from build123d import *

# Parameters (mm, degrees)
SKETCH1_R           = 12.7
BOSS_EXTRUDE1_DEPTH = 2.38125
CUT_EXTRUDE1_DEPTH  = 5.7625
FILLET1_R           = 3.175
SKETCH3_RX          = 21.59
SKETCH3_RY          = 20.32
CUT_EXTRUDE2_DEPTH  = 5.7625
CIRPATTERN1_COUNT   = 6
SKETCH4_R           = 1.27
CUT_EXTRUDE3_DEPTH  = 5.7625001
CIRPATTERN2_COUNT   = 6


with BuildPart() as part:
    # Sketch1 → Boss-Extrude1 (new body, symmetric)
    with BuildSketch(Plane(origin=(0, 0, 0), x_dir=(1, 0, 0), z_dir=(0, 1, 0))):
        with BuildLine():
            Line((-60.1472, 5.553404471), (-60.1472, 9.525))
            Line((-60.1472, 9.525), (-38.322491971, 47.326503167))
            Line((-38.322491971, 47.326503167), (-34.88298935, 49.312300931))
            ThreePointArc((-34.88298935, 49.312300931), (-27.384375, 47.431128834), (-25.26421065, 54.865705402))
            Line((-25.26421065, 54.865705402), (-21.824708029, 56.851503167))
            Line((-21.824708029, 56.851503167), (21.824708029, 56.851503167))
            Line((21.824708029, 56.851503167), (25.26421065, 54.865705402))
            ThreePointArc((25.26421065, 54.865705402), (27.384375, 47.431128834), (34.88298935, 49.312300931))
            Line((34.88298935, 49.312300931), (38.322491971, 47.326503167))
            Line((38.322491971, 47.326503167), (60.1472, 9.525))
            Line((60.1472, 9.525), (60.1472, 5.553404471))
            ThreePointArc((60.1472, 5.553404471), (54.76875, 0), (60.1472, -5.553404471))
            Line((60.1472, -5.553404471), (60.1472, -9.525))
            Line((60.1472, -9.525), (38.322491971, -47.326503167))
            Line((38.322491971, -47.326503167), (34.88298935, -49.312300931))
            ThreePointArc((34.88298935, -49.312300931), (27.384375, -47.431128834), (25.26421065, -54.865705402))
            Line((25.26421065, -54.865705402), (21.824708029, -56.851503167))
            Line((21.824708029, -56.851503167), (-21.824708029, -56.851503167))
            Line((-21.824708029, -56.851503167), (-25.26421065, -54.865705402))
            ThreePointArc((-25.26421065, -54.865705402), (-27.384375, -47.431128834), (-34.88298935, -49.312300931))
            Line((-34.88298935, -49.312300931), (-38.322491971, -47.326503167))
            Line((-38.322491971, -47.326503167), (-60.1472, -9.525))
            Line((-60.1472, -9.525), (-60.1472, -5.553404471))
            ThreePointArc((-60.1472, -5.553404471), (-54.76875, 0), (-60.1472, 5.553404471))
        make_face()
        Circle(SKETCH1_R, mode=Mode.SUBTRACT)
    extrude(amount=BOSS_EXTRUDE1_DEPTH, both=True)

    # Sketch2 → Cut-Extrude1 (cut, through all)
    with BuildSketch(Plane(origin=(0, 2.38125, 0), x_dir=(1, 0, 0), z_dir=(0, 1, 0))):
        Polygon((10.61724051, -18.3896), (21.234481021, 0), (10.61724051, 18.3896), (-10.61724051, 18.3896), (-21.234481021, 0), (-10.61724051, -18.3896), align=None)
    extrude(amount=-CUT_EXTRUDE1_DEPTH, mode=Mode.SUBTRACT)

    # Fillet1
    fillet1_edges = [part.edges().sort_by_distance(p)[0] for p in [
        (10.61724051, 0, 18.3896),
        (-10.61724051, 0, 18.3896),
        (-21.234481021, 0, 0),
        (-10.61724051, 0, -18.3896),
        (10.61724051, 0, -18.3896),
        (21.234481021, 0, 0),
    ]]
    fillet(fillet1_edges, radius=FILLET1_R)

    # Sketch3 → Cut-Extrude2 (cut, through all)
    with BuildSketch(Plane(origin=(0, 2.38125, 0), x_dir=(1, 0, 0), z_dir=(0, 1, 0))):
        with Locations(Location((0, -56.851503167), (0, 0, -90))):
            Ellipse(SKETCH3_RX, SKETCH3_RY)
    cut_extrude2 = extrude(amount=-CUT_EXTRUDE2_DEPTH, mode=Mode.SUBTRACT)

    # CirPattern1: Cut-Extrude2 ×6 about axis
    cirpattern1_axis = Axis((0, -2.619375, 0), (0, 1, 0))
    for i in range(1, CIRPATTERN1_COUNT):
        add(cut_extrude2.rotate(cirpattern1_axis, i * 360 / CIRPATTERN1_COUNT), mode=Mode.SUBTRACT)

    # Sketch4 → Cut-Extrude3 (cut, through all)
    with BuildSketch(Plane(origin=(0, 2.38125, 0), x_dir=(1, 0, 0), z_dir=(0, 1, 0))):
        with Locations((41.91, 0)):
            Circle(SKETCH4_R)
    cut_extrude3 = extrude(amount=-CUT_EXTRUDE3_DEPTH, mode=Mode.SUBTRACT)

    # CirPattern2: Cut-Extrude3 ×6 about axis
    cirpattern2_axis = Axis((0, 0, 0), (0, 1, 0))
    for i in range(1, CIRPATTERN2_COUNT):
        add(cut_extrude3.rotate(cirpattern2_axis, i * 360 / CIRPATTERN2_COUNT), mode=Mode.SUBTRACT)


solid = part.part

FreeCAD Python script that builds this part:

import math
import FreeCAD as App
import Part
import Sketcher

V = App.Vector
Q = App.Units.Quantity


def edges_at(feature, points):
    """Names of the edges that pass closest to the given points."""
    edges = feature.Shape.Edges
    near = lambda p: min(range(len(edges)), key=lambda i: edges[i].distToShape(Part.Vertex(*p))[0])
    return sorted({f"Edge{near(p) + 1}" for p in points})


def add_polygon(sketch, points):
    """Adds a closed chain of lines whose ends are joined by coincident constraints."""
    first, n = sketch.GeometryCount, len(points)
    for a, b in zip(points, points[1:] + points[:1]):
        sketch.addGeometry(Part.LineSegment(App.Vector(*a, 0), App.Vector(*b, 0)), False)
    for i in range(n):
        sketch.addConstraint(Sketcher.Constraint("Coincident", first + i, 2, first + (i + 1) % n, 1))

doc = App.newDocument("Part")
body = doc.addObject("PartDesign::Body", "Body")

# Sketch on XZ plane
sketch1 = doc.addObject("Sketcher::SketchObject", "Sketch")
body.addObject(sketch1)
sketch1.AttachmentSupport = (doc.XZ_Plane, [""])
sketch1.MapMode = "FlatFace"
sketch1.addGeometry(Part.LineSegment(V(-60.1472, -9.525, 0), V(-60.1472, -5.553404, 0)), False)
sketch1.addGeometry(Part.ArcOfCircle(Part.Circle(V(-60.325, 0, 0), V(0, 0, 1), 5.55625), math.radians(-88.166222), math.radians(88.166222)), False)
sketch1.addGeometry(Part.LineSegment(V(-60.1472, 5.553404, 0), V(-60.1472, 9.525, 0)), False)
sketch1.addGeometry(Part.LineSegment(V(-60.1472, 9.525, 0), V(-38.322492, 47.326503, 0)), False)
sketch1.addGeometry(Part.LineSegment(V(-38.322492, 47.326503, 0), V(-34.882989, 49.312301, 0)), False)
sketch1.addGeometry(Part.ArcOfCircle(Part.Circle(V(-30.1625, 52.242982, 0), V(0, 0, 1), 5.55625), math.radians(-148.166222), math.radians(28.166222)), False)
sketch1.addGeometry(Part.LineSegment(V(-25.264211, 54.865705, 0), V(-21.824708, 56.851503, 0)), False)
sketch1.addGeometry(Part.LineSegment(V(-21.824708, 56.851503, 0), V(21.824708, 56.851503, 0)), False)
sketch1.addGeometry(Part.LineSegment(V(21.824708, 56.851503, 0), V(25.264211, 54.865705, 0)), False)
sketch1.addGeometry(Part.ArcOfCircle(Part.Circle(V(30.1625, 52.242982, 0), V(0, 0, 1), 5.55625), math.radians(151.833778), math.radians(328.166222)), False)
sketch1.addGeometry(Part.LineSegment(V(34.882989, 49.312301, 0), V(38.322492, 47.326503, 0)), False)
sketch1.addGeometry(Part.LineSegment(V(38.322492, 47.326503, 0), V(60.1472, 9.525, 0)), False)
sketch1.addGeometry(Part.LineSegment(V(60.1472, 9.525, 0), V(60.1472, 5.553404, 0)), False)
sketch1.addGeometry(Part.ArcOfCircle(Part.Circle(V(60.325, 0, 0), V(0, 0, 1), 5.55625), math.radians(91.833778), math.radians(268.166222)), False)
sketch1.addGeometry(Part.LineSegment(V(60.1472, -5.553404, 0), V(60.1472, -9.525, 0)), False)
sketch1.addGeometry(Part.LineSegment(V(60.1472, -9.525, 0), V(38.322492, -47.326503, 0)), False)
sketch1.addGeometry(Part.LineSegment(V(38.322492, -47.326503, 0), V(34.882989, -49.312301, 0)), False)
sketch1.addGeometry(Part.ArcOfCircle(Part.Circle(V(30.1625, -52.242982, 0), V(0, 0, 1), 5.55625), math.radians(31.833778), math.radians(208.166222)), False)
sketch1.addGeometry(Part.LineSegment(V(25.264211, -54.865705, 0), V(21.824708, -56.851503, 0)), False)
sketch1.addGeometry(Part.LineSegment(V(21.824708, -56.851503, 0), V(-21.824708, -56.851503, 0)), False)
sketch1.addGeometry(Part.LineSegment(V(-21.824708, -56.851503, 0), V(-25.264211, -54.865705, 0)), False)
sketch1.addGeometry(Part.ArcOfCircle(Part.Circle(V(-30.1625, -52.242982, 0), V(0, 0, 1), 5.55625), math.radians(-28.166222), math.radians(148.166222)), False)
sketch1.addGeometry(Part.LineSegment(V(-34.882989, -49.312301, 0), V(-38.322492, -47.326503, 0)), False)
sketch1.addGeometry(Part.LineSegment(V(-38.322492, -47.326503, 0), V(-60.1472, -9.525, 0)), False)
sketch1.addGeometry(Part.Circle(V(0, 0, 0), V(0, 0, 1), 12.7), False)
sketch1.addConstraint(Sketcher.Constraint("Coincident", 0, 2, 1, 1))
sketch1.addConstraint(Sketcher.Constraint("Coincident", 1, 2, 2, 1))
sketch1.addConstraint(Sketcher.Constraint("Coincident", 2, 2, 3, 1))
sketch1.addConstraint(Sketcher.Constraint("Coincident", 3, 2, 4, 1))
sketch1.addConstraint(Sketcher.Constraint("Coincident", 4, 2, 5, 1))
sketch1.addConstraint(Sketcher.Constraint("Coincident", 5, 2, 6, 1))
sketch1.addConstraint(Sketcher.Constraint("Coincident", 6, 2, 7, 1))
sketch1.addConstraint(Sketcher.Constraint("Coincident", 7, 2, 8, 1))
sketch1.addConstraint(Sketcher.Constraint("Coincident", 8, 2, 9, 1))
sketch1.addConstraint(Sketcher.Constraint("Coincident", 9, 2, 10, 1))
sketch1.addConstraint(Sketcher.Constraint("Coincident", 10, 2, 11, 1))
sketch1.addConstraint(Sketcher.Constraint("Coincident", 11, 2, 12, 1))
sketch1.addConstraint(Sketcher.Constraint("Coincident", 12, 2, 13, 1))
sketch1.addConstraint(Sketcher.Constraint("Coincident", 13, 2, 14, 1))
sketch1.addConstraint(Sketcher.Constraint("Coincident", 14, 2, 15, 1))
sketch1.addConstraint(Sketcher.Constraint("Coincident", 15, 2, 16, 1))
sketch1.addConstraint(Sketcher.Constraint("Coincident", 16, 2, 17, 1))
sketch1.addConstraint(Sketcher.Constraint("Coincident", 17, 2, 18, 1))
sketch1.addConstraint(Sketcher.Constraint("Coincident", 18, 2, 19, 1))
sketch1.addConstraint(Sketcher.Constraint("Coincident", 19, 2, 20, 1))
sketch1.addConstraint(Sketcher.Constraint("Coincident", 20, 2, 21, 1))
sketch1.addConstraint(Sketcher.Constraint("Coincident", 21, 2, 22, 1))
sketch1.addConstraint(Sketcher.Constraint("Coincident", 22, 2, 23, 1))
sketch1.addConstraint(Sketcher.Constraint("Coincident", 23, 2, 0, 1))
sketch1.addConstraint(Sketcher.Constraint("Vertical", 0))
sketch1.addConstraint(Sketcher.Constraint("Vertical", 2))
sketch1.addConstraint(Sketcher.Constraint("Horizontal", 7))
sketch1.addConstraint(Sketcher.Constraint("Vertical", 12))
sketch1.addConstraint(Sketcher.Constraint("Vertical", 14))
sketch1.addConstraint(Sketcher.Constraint("Horizontal", 19))
sketch1.addConstraint(Sketcher.Constraint("Coincident", 24, 3, -1, 1))
sketch1.addConstraint(Sketcher.Constraint("Equal", 1, 5))
sketch1.addConstraint(Sketcher.Constraint("Equal", 5, 9))
sketch1.addConstraint(Sketcher.Constraint("Equal", 9, 13))
sketch1.addConstraint(Sketcher.Constraint("Equal", 13, 17))
sketch1.addConstraint(Sketcher.Constraint("Equal", 17, 21))
sketch1.addConstraint(Sketcher.Constraint("Symmetric", 1, 3, 13, 3, -1, 1))
sketch1.addConstraint(Sketcher.Constraint("Symmetric", 5, 3, 17, 3, -1, 1))
sketch1.addConstraint(Sketcher.Constraint("Symmetric", 9, 3, 21, 3, -1, 1))
sketch1.addConstraint(Sketcher.Constraint("Symmetric", 2, 2, 14, 2, -1, 1))
sketch1.addConstraint(Sketcher.Constraint("Symmetric", 3, 2, 15, 2, -1, 1))
sketch1.addConstraint(Sketcher.Constraint("Symmetric", 6, 2, 18, 2, -1, 1))
sketch1.addConstraint(Sketcher.Constraint("Symmetric", 10, 2, 22, 2, -1, 1))
sketch1.addConstraint(Sketcher.Constraint("Symmetric", 11, 2, 23, 2, -1, 1))
sketch1.addConstraint(Sketcher.Constraint("Symmetric", 5, 3, 9, 3, -2))
sketch1.addConstraint(Sketcher.Constraint("Symmetric", 3, 2, 10, 2, -2))
sketch1.addConstraint(Sketcher.Constraint("Symmetric", 2, 2, 11, 2, -2))
sketch1.addConstraint(Sketcher.Constraint("PointOnObject", 1, 3, -1))
sketch1.addConstraint(Sketcher.Constraint("Parallel", 4, 6))
sketch1.addConstraint(Sketcher.Constraint("Perpendicular", 3, 8))
sketch1.addConstraint(Sketcher.Constraint("Parallel", 8, 10))
sketch1.addConstraint(Sketcher.Constraint("Perpendicular", 6, 11))
sketch1.addConstraint(Sketcher.Constraint("Perpendicular", 11, 16))
sketch1.addConstraint(Sketcher.Constraint("Parallel", 16, 18))
sketch1.addConstraint(Sketcher.Constraint("Perpendicular", 15, 20))
sketch1.addConstraint(Sketcher.Constraint("Parallel", 20, 22))
sketch1.addConstraint(Sketcher.Constraint("Horizontal", 5, 2, 8, 2))
sketch1.addConstraint(Sketcher.Constraint("Horizontal", 17, 2, 20, 2))
sketch1.addConstraint(Sketcher.Constraint("Equal", 4, 6))
sketch1.addConstraint(Sketcher.Constraint("Diameter", 24, Q("1 in")))
sketch1.addConstraint(Sketcher.Constraint("Angle", 3, Q("60 deg")))
sketch1.addConstraint(Sketcher.Constraint("Radius", 1, Q("0.21875 in")))
sketch1.addConstraint(Sketcher.Constraint("DistanceX", 1, 3, 13, 3, Q("4.75 in")))
sketch1.addConstraint(Sketcher.Constraint("DistanceY", 14, 2, 11, 2, Q("0.75 in")))
sketch1.addConstraint(Sketcher.Constraint("DistanceX", 5, 3, -1, 1, Q("1.1875 in")))
sketch1.addConstraint(Sketcher.Constraint("DistanceX", 0, 2, -1, 1, Q("2.368 in")))
sketch1.addConstraint(Sketcher.Constraint("DistanceY", 3, 2, 6, 2, Q("0.375 in")))
sketch1.addConstraint(Sketcher.Constraint("DistanceY", -1, 1, 4, 2, Q("49.312301 mm")))
sketch1.addConstraint(Sketcher.Constraint("DistanceY", 1, 2, 3, 2, Q("41.773099 mm")))
pad1 = doc.addObject("PartDesign::Pad", "Pad")
body.addObject(pad1)
pad1.Profile = sketch1
pad1.Length = Q("0.1875 in")
pad1.Midplane = True

# Sketch on XZ plane
sketch2 = doc.addObject("Sketcher::SketchObject", "Sketch001")
body.addObject(sketch2)
sketch2.AttachmentSupport = (doc.XZ_Plane, [""])
sketch2.MapMode = "FlatFace"
sketch2.AttachmentOffset = App.Placement(V(0, 0, -0.09375 * 25.4), App.Rotation())
add_polygon(sketch2, [(10.617241, 18.3896), (21.234481, 0), (10.617241, -18.3896), (-10.617241, -18.3896), (-21.234481, 0), (-10.617241, 18.3896)])  # lines 0-5
sketch2.addConstraint(Sketcher.Constraint("Horizontal", 2))
sketch2.addConstraint(Sketcher.Constraint("Horizontal", 5))
sketch2.addConstraint(Sketcher.Constraint("Symmetric", 0, 2, 3, 2, -1, 1))
sketch2.addConstraint(Sketcher.Constraint("Symmetric", 1, 2, 4, 2, -1, 1))
sketch2.addConstraint(Sketcher.Constraint("PointOnObject", 0, 2, -1))
sketch2.addConstraint(Sketcher.Constraint("Parallel", 0, 3))
sketch2.addConstraint(Sketcher.Constraint("Vertical", 2, 2, 4, 2))
sketch2.addConstraint(Sketcher.Constraint("Angle", 0, Q("-60 deg")))
sketch2.addConstraint(Sketcher.Constraint("DistanceY", 1, 2, -1, 1, Q("0.724 in")))
sketch2.addConstraint(Sketcher.Constraint("DistanceX", 2, 2, 2, 1, Q("21.234481 mm")))
pocket1 = doc.addObject("PartDesign::Pocket", "Pocket")
body.addObject(pocket1)
pocket1.Profile = sketch2
pocket1.Type = "ThroughAll"
pocket1.Reversed = True
doc.recompute()

fillet = doc.addObject("PartDesign::Fillet", "Fillet")
body.addObject(fillet)
fillet.Base = (pocket1, edges_at(pocket1, [
    (10.617, 0, 18.39),
    (-10.617, 0, 18.39),
    (-21.234, 0, 0),
    (-10.617, 0, -18.39),
    (10.617, 0, -18.39),
    (21.234, 0, 0),
]))
fillet.Radius = Q("0.125 in")

# Sketch on XZ plane
sketch3 = doc.addObject("Sketcher::SketchObject", "Sketch002")
body.addObject(sketch3)
sketch3.AttachmentSupport = (doc.XZ_Plane, [""])
sketch3.MapMode = "FlatFace"
sketch3.AttachmentOffset = App.Placement(V(0, 0, -0.09375 * 25.4), App.Rotation())
sketch3.addGeometry(Part.Ellipse(V(0, 78.441503, 0), V(-20.32, 56.851503, 0), V(0, 56.851503, 0)), False)
sketch3.addConstraint(Sketcher.Constraint("Block", 0))
pocket2 = doc.addObject("PartDesign::Pocket", "Pocket001")
body.addObject(pocket2)
pocket2.Profile = sketch3
pocket2.Type = "ThroughAll"
pocket2.Reversed = True
doc.recompute()

polarpattern = doc.addObject("PartDesign::PolarPattern", "PolarPattern")
body.addObject(polarpattern)
polarpattern.Originals = [pocket2]
polarpattern.Axis = (doc.Y_Axis, [""])
polarpattern.Angle = 360
polarpattern.Occurrences = 6
body.Tip = polarpattern

# Sketch on XZ plane
sketch4 = doc.addObject("Sketcher::SketchObject", "Sketch003")
body.addObject(sketch4)
sketch4.AttachmentSupport = (doc.XZ_Plane, [""])
sketch4.MapMode = "FlatFace"
sketch4.AttachmentOffset = App.Placement(V(0, 0, -0.09375 * 25.4), App.Rotation())
sketch4.addGeometry(Part.Circle(V(41.91, 0, 0), V(0, 0, 1), 1.27), False)
sketch4.addConstraint(Sketcher.Constraint("PointOnObject", 0, 3, -1))
sketch4.addConstraint(Sketcher.Constraint("Diameter", 0, Q("0.1 in")))
sketch4.addConstraint(Sketcher.Constraint("DistanceX", -1, 1, 0, 3, Q("1.65 in")))
pocket3 = doc.addObject("PartDesign::Pocket", "Pocket002")
body.addObject(pocket3)
pocket3.Profile = sketch4
pocket3.Type = "ThroughAll"
pocket3.Reversed = True
doc.recompute()

polarpattern2 = doc.addObject("PartDesign::PolarPattern", "PolarPattern001")
body.addObject(polarpattern2)
polarpattern2.Originals = [pocket3]
polarpattern2.Axis = (doc.Y_Axis, [""])
polarpattern2.Angle = 360
polarpattern2.Occurrences = 6
body.Tip = polarpattern2

doc.recompute()
